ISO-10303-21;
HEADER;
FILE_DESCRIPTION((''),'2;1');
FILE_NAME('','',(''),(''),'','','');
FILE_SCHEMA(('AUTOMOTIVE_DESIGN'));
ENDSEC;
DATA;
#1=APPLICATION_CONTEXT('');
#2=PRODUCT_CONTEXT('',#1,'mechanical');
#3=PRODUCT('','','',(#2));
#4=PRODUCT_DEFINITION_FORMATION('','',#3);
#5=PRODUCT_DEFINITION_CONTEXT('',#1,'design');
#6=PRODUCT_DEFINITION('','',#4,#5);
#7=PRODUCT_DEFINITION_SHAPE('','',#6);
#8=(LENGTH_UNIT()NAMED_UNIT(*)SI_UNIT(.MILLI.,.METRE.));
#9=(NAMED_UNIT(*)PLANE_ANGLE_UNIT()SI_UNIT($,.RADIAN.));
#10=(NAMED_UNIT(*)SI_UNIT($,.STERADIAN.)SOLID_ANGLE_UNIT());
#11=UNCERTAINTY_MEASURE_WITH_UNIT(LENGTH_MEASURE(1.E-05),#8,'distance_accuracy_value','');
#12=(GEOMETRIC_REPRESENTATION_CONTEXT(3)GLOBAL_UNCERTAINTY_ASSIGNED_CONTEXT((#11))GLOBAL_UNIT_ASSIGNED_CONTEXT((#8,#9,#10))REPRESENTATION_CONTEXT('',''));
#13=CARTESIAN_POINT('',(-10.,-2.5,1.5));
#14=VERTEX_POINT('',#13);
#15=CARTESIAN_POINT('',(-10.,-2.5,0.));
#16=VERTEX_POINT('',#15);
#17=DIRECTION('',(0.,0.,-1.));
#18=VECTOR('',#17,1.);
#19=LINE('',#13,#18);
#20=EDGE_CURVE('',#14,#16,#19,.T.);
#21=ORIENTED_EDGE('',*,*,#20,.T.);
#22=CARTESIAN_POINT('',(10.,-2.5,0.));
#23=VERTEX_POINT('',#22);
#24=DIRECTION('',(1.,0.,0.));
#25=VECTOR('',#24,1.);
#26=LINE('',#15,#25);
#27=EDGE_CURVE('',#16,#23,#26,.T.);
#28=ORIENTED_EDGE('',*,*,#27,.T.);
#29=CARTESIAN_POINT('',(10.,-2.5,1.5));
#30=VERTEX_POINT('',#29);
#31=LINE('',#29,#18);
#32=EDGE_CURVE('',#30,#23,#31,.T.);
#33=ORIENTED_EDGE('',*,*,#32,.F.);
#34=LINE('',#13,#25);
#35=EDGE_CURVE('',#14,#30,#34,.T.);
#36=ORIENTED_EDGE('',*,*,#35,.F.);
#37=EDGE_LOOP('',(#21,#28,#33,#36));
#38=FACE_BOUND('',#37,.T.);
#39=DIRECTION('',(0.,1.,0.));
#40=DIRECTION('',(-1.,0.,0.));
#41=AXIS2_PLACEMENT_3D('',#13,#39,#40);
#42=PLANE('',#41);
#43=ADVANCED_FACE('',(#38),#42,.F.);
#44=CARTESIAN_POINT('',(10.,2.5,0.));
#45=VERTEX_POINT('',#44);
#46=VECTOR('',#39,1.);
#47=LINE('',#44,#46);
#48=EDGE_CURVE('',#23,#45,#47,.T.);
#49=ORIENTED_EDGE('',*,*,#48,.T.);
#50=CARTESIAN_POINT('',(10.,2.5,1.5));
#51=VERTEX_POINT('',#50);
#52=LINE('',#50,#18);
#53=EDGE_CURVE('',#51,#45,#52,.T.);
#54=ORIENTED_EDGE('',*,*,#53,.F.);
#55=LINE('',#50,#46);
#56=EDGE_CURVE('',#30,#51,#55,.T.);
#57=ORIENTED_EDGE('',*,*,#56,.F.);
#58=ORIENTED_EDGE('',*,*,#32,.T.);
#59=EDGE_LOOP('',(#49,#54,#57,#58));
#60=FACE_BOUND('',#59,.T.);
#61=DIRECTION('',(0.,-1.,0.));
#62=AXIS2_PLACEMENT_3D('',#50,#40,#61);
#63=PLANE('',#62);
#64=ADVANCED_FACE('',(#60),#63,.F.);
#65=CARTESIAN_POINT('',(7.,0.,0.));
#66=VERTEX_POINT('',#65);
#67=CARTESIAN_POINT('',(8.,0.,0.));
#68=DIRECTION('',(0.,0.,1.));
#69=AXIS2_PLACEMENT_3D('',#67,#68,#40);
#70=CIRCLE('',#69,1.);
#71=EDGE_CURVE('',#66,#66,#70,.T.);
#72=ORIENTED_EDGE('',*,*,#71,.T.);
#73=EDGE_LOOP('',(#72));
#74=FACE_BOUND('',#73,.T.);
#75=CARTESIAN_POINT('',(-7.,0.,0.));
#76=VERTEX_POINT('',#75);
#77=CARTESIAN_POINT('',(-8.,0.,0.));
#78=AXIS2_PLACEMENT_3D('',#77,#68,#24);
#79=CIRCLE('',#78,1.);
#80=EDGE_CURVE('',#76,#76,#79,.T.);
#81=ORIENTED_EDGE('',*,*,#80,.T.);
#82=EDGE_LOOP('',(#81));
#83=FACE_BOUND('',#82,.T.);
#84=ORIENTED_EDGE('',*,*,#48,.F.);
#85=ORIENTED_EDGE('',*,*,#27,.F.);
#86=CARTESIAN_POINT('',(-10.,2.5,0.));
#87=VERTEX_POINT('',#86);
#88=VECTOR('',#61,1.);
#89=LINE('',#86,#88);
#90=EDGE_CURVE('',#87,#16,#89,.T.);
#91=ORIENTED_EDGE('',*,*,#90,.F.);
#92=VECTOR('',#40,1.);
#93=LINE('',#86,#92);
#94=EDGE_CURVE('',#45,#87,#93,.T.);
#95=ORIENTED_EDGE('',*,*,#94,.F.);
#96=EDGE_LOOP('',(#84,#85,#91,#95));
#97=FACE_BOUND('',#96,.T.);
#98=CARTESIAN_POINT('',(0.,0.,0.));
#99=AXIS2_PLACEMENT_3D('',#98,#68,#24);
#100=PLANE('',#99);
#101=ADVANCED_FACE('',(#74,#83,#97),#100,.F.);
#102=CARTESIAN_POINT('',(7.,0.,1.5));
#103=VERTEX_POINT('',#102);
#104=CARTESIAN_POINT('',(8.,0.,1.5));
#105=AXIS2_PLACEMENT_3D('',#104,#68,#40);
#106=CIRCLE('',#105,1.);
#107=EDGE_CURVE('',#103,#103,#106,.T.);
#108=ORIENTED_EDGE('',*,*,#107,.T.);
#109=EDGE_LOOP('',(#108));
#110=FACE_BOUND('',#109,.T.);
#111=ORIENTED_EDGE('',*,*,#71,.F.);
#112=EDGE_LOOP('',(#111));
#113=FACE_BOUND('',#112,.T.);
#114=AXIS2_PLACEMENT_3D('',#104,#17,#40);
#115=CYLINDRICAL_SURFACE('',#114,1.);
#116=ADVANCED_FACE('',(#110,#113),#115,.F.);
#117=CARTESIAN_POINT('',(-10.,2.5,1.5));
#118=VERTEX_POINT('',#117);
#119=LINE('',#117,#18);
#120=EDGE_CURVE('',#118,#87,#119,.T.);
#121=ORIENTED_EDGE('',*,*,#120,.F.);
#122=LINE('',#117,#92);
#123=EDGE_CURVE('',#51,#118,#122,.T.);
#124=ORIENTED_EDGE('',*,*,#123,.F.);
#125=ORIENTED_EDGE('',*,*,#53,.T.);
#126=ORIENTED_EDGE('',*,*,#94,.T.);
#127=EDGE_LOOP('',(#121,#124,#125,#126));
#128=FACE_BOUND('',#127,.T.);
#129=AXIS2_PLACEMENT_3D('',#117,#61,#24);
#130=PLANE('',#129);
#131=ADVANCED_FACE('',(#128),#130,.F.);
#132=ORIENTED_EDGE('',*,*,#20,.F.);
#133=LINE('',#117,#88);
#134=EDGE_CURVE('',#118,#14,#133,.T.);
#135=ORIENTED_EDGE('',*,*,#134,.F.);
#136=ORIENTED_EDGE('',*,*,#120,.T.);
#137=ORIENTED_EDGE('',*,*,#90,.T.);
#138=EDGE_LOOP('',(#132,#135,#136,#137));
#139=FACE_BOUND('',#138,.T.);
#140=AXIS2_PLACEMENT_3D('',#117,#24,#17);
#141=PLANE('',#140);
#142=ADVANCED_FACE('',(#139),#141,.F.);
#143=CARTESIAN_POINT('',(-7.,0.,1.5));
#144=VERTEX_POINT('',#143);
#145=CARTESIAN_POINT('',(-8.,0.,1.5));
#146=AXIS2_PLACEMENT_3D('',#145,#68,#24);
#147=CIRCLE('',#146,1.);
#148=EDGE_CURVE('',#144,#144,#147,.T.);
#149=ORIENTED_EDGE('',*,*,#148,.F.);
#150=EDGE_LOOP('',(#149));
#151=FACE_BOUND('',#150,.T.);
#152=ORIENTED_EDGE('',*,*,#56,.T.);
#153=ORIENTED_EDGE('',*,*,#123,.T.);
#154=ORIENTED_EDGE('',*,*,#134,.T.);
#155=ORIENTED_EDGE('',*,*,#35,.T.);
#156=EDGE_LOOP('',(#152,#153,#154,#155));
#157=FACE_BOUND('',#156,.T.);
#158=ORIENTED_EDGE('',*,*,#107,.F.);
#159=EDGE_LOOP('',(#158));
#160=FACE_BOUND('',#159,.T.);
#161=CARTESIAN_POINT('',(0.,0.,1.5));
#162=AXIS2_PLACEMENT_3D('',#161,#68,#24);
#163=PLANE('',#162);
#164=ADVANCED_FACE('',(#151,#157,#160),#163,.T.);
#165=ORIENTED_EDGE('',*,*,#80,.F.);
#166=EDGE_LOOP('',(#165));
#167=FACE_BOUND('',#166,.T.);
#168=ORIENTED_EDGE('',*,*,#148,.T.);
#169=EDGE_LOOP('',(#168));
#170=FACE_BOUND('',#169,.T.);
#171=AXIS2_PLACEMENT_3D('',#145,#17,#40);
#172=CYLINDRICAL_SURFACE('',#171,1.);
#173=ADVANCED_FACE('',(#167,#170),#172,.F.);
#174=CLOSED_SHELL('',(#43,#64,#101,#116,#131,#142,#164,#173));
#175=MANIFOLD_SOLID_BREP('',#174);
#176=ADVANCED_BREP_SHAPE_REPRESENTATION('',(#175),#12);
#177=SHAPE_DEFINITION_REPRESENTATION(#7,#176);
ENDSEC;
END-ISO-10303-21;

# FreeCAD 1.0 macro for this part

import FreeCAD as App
import Part
import Sketcher


def add_polygon(sketch, points):
    """Adds a closed chain of lines whose ends are joined by coincident constraints."""
    first, n = sketch.GeometryCount, len(points)
    for a, b in zip(points, points[1:] + points[:1]):
        sketch.addGeometry(Part.LineSegment(App.Vector(*a, 0), App.Vector(*b, 0)), False)
    for i in range(n):
        sketch.addConstraint(Sketcher.Constraint("Coincident", first + i, 2, first + (i + 1) % n, 1))

doc = App.newDocument("Part")
body = doc.addObject("PartDesign::Body", "Body")

# Sketch on XY plane
sketch1 = body.newObject("Sketcher::SketchObject", "Sketch")
sketch1.AttachmentSupport = (doc.getObject("XY_Plane"), [""])
sketch1.MapMode = "FlatFace"
add_polygon(sketch1, [(-10, 2.5), (-10, -2.5), (10, -2.5), (10, 2.5)])  # lines 0-3
sketch1.addGeometry(Part.Circle(App.Vector(-8, 0, 0), App.Vector(0, 0, 1), 1), False)  # 4
sketch1.addGeometry(Part.Circle(App.Vector(8, 0, 0), App.Vector(0, 0, 1), 1), False)  # 5
sketch1.addConstraint(Sketcher.Constraint("Vertical", 0))
sketch1.addConstraint(Sketcher.Constraint("Horizontal", 1))
sketch1.addConstraint(Sketcher.Constraint("Vertical", 2))
sketch1.addConstraint(Sketcher.Constraint("Horizontal", 3))
sketch1.addConstraint(Sketcher.Constraint("Equal", 4, 5))
sketch1.addConstraint(Sketcher.Constraint("Symmetric", 4, 3, 5, 3, -1, 1))
sketch1.addConstraint(Sketcher.Constraint("Symmetric", 0, 2, 2, 2, -1, 1))
sketch1.addConstraint(Sketcher.Constraint("PointOnObject", 4, 3, -1))
sketch1.addConstraint(Sketcher.Constraint("Diameter", 4, 2.0))
sketch1.addConstraint(Sketcher.Constraint("DistanceX", 1, 1, 1, 2, 20.0))
sketch1.addConstraint(Sketcher.Constraint("DistanceY", 0, 2, 0, 1, 5.0))
sketch1.addConstraint(Sketcher.Constraint("DistanceX", 4, 3, -1, 1, 8.0))
pad1 = body.newObject("PartDesign::Pad", "Pad")
pad1.Profile = sketch1
pad1.Length = 1.5

doc.recompute()
